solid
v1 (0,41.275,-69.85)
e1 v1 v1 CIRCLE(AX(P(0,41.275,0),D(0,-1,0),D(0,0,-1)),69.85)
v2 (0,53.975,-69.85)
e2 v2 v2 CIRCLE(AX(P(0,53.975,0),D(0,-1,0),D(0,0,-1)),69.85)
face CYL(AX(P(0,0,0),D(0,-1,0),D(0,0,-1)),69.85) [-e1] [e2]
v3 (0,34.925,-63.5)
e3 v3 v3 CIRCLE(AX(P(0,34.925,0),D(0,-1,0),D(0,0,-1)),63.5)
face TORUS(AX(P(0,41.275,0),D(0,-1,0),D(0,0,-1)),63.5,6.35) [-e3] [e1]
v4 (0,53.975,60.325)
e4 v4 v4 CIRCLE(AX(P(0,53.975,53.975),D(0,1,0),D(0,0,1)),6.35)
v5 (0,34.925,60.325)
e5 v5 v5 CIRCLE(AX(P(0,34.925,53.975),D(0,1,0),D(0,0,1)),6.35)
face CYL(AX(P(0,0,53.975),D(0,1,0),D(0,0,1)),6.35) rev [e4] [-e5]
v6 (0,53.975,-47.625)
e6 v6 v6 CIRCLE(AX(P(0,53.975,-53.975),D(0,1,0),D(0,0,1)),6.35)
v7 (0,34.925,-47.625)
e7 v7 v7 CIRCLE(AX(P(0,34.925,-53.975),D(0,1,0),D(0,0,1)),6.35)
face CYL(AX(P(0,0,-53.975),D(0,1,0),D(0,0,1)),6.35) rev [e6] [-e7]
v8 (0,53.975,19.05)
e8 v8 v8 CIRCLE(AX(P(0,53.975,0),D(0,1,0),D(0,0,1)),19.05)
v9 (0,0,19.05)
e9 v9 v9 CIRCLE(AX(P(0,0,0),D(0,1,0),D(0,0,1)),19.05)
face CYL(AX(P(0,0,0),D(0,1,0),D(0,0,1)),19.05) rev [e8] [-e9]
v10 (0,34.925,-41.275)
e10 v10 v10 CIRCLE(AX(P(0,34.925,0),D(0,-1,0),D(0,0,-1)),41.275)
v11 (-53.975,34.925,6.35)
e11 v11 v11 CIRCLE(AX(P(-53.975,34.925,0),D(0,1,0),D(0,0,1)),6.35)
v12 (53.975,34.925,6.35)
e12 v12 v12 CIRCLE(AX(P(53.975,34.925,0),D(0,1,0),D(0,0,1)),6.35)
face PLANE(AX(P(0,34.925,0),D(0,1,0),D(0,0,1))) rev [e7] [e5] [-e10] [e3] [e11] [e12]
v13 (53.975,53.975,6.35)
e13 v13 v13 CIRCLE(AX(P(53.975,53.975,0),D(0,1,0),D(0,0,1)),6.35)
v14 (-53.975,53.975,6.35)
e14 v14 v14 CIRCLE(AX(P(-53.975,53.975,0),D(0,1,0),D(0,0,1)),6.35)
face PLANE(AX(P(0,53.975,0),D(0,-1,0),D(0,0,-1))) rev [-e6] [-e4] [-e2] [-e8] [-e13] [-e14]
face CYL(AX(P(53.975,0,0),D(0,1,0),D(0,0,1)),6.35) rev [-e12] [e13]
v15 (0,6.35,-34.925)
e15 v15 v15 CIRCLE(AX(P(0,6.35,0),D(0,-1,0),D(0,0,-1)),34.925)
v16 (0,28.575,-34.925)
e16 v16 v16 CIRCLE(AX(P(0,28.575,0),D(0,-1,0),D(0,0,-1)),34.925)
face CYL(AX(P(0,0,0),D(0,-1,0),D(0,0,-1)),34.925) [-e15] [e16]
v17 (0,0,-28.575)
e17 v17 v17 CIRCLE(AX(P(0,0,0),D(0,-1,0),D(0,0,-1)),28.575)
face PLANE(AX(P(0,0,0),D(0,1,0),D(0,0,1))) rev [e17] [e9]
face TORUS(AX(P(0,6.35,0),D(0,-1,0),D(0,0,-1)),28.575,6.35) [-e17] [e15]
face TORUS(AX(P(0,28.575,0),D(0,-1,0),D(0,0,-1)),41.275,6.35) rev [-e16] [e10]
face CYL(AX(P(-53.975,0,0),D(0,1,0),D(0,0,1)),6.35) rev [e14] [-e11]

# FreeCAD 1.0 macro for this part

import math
import FreeCAD as App
import Part
import Sketcher

V = App.Vector
Q = App.Units.Quantity

doc = App.newDocument("Part")
body = doc.addObject("PartDesign::Body", "Body")

sketch1 = doc.addObject("Sketcher::SketchObject", "Sketch")
body.addObject(sketch1)
sketch1.AttachmentSupport = (doc.YZ_Plane, [""])
sketch1.MapMode = "FlatFace"
sketch1.addGeometry([
    Part.LineSegment(V(6.35, -34.925, 0), V(28.575, -34.925, 0)),
    Part.ArcOfCircle(Part.Circle(V(28.575, -41.275, 0), V(0, 0, 1), 6.35), math.radians(0), math.radians(90)),
    Part.LineSegment(V(34.925, -41.275, 0), V(34.925, -63.5, 0)),
    Part.ArcOfCircle(Part.Circle(V(41.275, -63.5, 0), V(0, 0, 1), 6.35), math.radians(180), math.radians(270)),
    Part.LineSegment(V(41.275, -69.85, 0), V(53.975, -69.85, 0)),
    Part.LineSegment(V(53.975, -69.85, 0), V(53.975, 0, 0)),
    Part.LineSegment(V(53.975, 0, 0), V(0, 0, 0)),
    Part.LineSegment(V(0, 0, 0), V(0, -28.575, 0)),
    Part.ArcOfCircle(Part.Circle(V(6.35, -28.575, 0), V(0, 0, 1), 6.35), math.radians(180), math.radians(270)),
], False)
sketch1.addConstraint([
    Sketcher.Constraint("Tangent", 0, 2, 1, 2),
    Sketcher.Constraint("Tangent", 1, 1, 2, 1),
    Sketcher.Constraint("Tangent", 2, 2, 3, 1),
    Sketcher.Constraint("Tangent", 3, 2, 4, 1),
    Sketcher.Constraint("Coincident", 4, 2, 5, 1),
    Sketcher.Constraint("Coincident", 5, 2, 6, 1),
    Sketcher.Constraint("Coincident", 6, 2, 7, 1),
    Sketcher.Constraint("Tangent", 7, 2, 8, 1),
    Sketcher.Constraint("Tangent", 8, 2, 0, 1),
    Sketcher.Constraint("Horizontal", 0),
    Sketcher.Constraint("Vertical", 2),
    Sketcher.Constraint("Horizontal", 4),
    Sketcher.Constraint("Vertical", 5),
    Sketcher.Constraint("Horizontal", 6),
    Sketcher.Constraint("Vertical", 7),
    Sketcher.Constraint("Coincident", 6, 2, -1, 1),
    Sketcher.Constraint("Equal", 1, 3),
    Sketcher.Constraint("Equal", 3, 8),
    Sketcher.Constraint("Equal", 0, 2),
    Sketcher.Constraint("Radius", 1, Q("0.25 in")),
    Sketcher.Constraint("DistanceX", 4, 1, 4, 2, Q("0.5 in")),
    Sketcher.Constraint("DistanceY", 5, 1, 5, 2, Q("2.75 in")),
    Sketcher.Constraint("DistanceX", 0, 1, 0, 2, Q("0.875 in")),
])
revolution = doc.addObject("PartDesign::Revolution", "Revolution")
body.addObject(revolution)
revolution.Profile = sketch1
revolution.ReferenceAxis = (sketch1, ["H_Axis"])
revolution.Angle = 360

sketch2 = doc.addObject("Sketcher::SketchObject", "Sketch001")
body.addObject(sketch2)
sketch2.AttachmentSupport = (doc.XZ_Plane, [""])
sketch2.MapMode = "FlatFace"
sketch2.AttachmentOffset = App.Placement(V(0, 0, -2.125 * 25.4), App.Rotation())
sketch2.addGeometry([
    Part.Circle(V(0, 0, 0), V(0, 0, 1), 19.05),
    Part.Circle(V(0, -53.975, 0), V(0, 0, 1), 6.35),
    Part.Circle(V(53.975, 0, 0), V(0, 0, 1), 6.35),
    Part.Circle(V(0, 53.975, 0), V(0, 0, 1), 6.35),
    Part.Circle(V(-53.975, 0, 0), V(0, 0, 1), 6.35),
], False)
sketch2.addConstraint([
    Sketcher.Constraint("Coincident", 0, 3, -1, 1),
    Sketcher.Constraint("Equal", 1, 2),
    Sketcher.Constraint("Equal", 2, 3),
    Sketcher.Constraint("Equal", 3, 4),
    Sketcher.Constraint("Symmetric", 1, 3, 3, 3, -1, 1),
    Sketcher.Constraint("Symmetric", 2, 3, 4, 3, -1, 1),
    Sketcher.Constraint("PointOnObject", 1, 3, -2),
    Sketcher.Constraint("PointOnObject", 2, 3, -1),
    Sketcher.Constraint("Diameter", 0, Q("1.5 in")),
    Sketcher.Constraint("Diameter", 1, Q("0.5 in")),
    Sketcher.Constraint("DistanceY", 1, 3, 3, 3, Q("4.25 in")),
    Sketcher.Constraint("DistanceX", 4, 3, 2, 3, Q("4.25 in")),
])
pocket1 = doc.addObject("PartDesign::Pocket", "Pocket")
body.addObject(pocket1)
pocket1.Profile = sketch2
pocket1.Type = "ThroughAll"
pocket1.Reversed = True

doc.recompute()
